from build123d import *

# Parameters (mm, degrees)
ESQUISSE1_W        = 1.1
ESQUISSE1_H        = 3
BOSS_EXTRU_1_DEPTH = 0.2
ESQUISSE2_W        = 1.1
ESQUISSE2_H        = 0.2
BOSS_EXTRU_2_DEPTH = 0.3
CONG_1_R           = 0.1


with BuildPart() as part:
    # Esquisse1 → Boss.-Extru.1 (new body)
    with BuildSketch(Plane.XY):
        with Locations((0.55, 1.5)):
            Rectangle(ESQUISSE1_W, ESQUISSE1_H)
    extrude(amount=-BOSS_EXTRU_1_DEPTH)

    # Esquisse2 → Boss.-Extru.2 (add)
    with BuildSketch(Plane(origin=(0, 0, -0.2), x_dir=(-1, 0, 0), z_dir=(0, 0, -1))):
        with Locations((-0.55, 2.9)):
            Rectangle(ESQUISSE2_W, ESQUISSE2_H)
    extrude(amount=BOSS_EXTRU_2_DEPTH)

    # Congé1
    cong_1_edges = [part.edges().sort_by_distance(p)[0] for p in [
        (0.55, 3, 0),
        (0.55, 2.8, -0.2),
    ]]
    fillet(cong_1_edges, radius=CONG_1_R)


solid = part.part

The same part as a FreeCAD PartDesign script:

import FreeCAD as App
import Part
import Sketcher


def edges_at(feature, points):
    """Names of the edges that pass closest to the given points."""
    edges = feature.Shape.Edges
    near = lambda p: min(range(len(edges)), key=lambda i: edges[i].distToShape(Part.Vertex(*p))[0])
    return sorted({f"Edge{near(p) + 1}" for p in points})

doc = App.newDocument("Part")
body = doc.addObject("PartDesign::Body", "Body")

sketch1 = doc.addObject("Sketcher::SketchObject", "Sketch")
body.addObject(sketch1)
sketch1.AttachmentSupport = (doc.XY_Plane, [""])
sketch1.MapMode = "FlatFace"
sketch1.addGeometry(Part.LineSegment(App.Vector(0, 3, 0), App.Vector(0, 0, 0)), False)
sketch1.addGeometry(Part.LineSegment(App.Vector(0, 0, 0), App.Vector(1.1, 0, 0)), False)
sketch1.addGeometry(Part.LineSegment(App.Vector(1.1, 0, 0), App.Vector(1.1, 3, 0)), False)
sketch1.addGeometry(Part.LineSegment(App.Vector(1.1, 3, 0), App.Vector(0, 3, 0)), False)
sketch1.addConstraint(Sketcher.Constraint("Coincident", 0, 2, 1, 1))
sketch1.addConstraint(Sketcher.Constraint("Coincident", 1, 2, 2, 1))
sketch1.addConstraint(Sketcher.Constraint("Coincident", 2, 2, 3, 1))
sketch1.addConstraint(Sketcher.Constraint("Coincident", 3, 2, 0, 1))
sketch1.addConstraint(Sketcher.Constraint("Vertical", 0))
sketch1.addConstraint(Sketcher.Constraint("Horizontal", 1))
sketch1.addConstraint(Sketcher.Constraint("Vertical", 2))
sketch1.addConstraint(Sketcher.Constraint("Horizontal", 3))
sketch1.addConstraint(Sketcher.Constraint("Coincident", 0, 2, -1, 1))
sketch1.addConstraint(Sketcher.Constraint("DistanceY", 0, 2, 0, 1, 3.0))
sketch1.addConstraint(Sketcher.Constraint("DistanceX", 1, 1, 1, 2, 1.1))
pad1 = doc.addObject("PartDesign::Pad", "Pad")
body.addObject(pad1)
pad1.Profile = sketch1
pad1.Length = 0.2
pad1.Reversed = True

sketch2 = doc.addObject("Sketcher::SketchObject", "Sketch001")
body.addObject(sketch2)
sketch2.AttachmentSupport = (doc.XY_Plane, [""])
sketch2.MapMode = "FlatFace"
sketch2.AttachmentOffset = App.Placement(App.Vector(0, 0, -0.2), App.Rotation())
sketch2.addGeometry(Part.LineSegment(App.Vector(1.1, 3, 0), App.Vector(1.1, 2.8, 0)), False)
sketch2.addGeometry(Part.LineSegment(App.Vector(1.1, 2.8, 0), App.Vector(0, 2.8, 0)), False)
sketch2.addGeometry(Part.LineSegment(App.Vector(0, 2.8, 0), App.Vector(0, 3, 0)), False)
sketch2.addGeometry(Part.LineSegment(App.Vector(0, 3, 0), App.Vector(1.1, 3, 0)), False)
sketch2.addConstraint(Sketcher.Constraint("Coincident", 0, 2, 1, 1))
sketch2.addConstraint(Sketcher.Constraint("Coincident", 1, 2, 2, 1))
sketch2.addConstraint(Sketcher.Constraint("Coincident", 2, 2, 3, 1))
sketch2.addConstraint(Sketcher.Constraint("Coincident", 3, 2, 0, 1))
sketch2.addConstraint(Sketcher.Constraint("Vertical", 0))
sketch2.addConstraint(Sketcher.Constraint("Horizontal", 1))
sketch2.addConstraint(Sketcher.Constraint("Vertical", 2))
sketch2.addConstraint(Sketcher.Constraint("Horizontal", 3))
sketch2.addConstraint(Sketcher.Constraint("PointOnObject", 1, 2, -2))
sketch2.addConstraint(Sketcher.Constraint("DistanceX", 1, 2, 1, 1, 1.1))
sketch2.addConstraint(Sketcher.Constraint("DistanceY", 0, 2, 0, 1, 0.2))
sketch2.addConstraint(Sketcher.Constraint("DistanceY", -1, 1, 2, 2, 3.0))
pad2 = doc.addObject("PartDesign::Pad", "Pad001")
body.addObject(pad2)
pad2.Profile = sketch2
pad2.Length = 0.3
pad2.Reversed = True
doc.recompute()

fillet = doc.addObject("PartDesign::Fillet", "Fillet")
body.addObject(fillet)
fillet.Base = (pad2, edges_at(pad2, [(0.55, 3, 0), (0.55, 2.8, -0.2)]))
fillet.Radius = 0.1

doc.recompute()
